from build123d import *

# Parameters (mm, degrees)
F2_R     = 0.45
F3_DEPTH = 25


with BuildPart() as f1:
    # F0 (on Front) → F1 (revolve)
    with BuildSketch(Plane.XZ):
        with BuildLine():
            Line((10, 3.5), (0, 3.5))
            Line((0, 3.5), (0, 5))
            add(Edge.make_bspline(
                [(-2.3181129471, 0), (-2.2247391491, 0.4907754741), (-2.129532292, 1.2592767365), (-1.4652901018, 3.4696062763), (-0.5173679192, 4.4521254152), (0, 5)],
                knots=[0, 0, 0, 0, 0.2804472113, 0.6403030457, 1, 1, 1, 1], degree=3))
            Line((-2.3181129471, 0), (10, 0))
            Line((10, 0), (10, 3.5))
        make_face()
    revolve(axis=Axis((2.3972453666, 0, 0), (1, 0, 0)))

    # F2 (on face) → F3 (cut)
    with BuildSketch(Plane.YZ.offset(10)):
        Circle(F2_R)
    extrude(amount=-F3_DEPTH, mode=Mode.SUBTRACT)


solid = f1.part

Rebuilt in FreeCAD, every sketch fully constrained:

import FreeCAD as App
import Part
import Sketcher

doc = App.newDocument("Part")
body = doc.addObject("PartDesign::Body", "Body")

# Sketch on XZ plane
sketch1 = body.newObject("Sketcher::SketchObject", "Sketch")
sketch1.AttachmentSupport = (doc.getObject("XZ_Plane"), [""])
sketch1.MapMode = "FlatFace"
sketch1.addGeometry(Part.LineSegment(App.Vector(10, 3.5, 0), App.Vector(0, 3.5, 0)), False)
sketch1.addGeometry(Part.LineSegment(App.Vector(0, 3.5, 0), App.Vector(0, 5, 0)), False)
sketch1.addGeometry(Part.BSplineCurve([App.Vector(-2.318113, 0, 0), App.Vector(-2.224739, 0.490775, 0), App.Vector(-2.129532, 1.259277, 0), App.Vector(-1.46529, 3.469606, 0), App.Vector(-0.517368, 4.452125, 0), App.Vector(0, 5, 0)], [4, 1, 1, 4], [0, 0.280447211, 0.640303046, 1], False, 3, [1, 1, 1, 1, 1, 1], False), False)
sketch1.addGeometry(Part.LineSegment(App.Vector(-2.318113, 0, 0), App.Vector(10, 0, 0)), False)
sketch1.addGeometry(Part.LineSegment(App.Vector(10, 0, 0), App.Vector(10, 3.5, 0)), False)
sketch1.addConstraint(Sketcher.Constraint("Block", 2))
sketch1.addConstraint(Sketcher.Constraint("Coincident", 0, 2, 1, 1))
sketch1.addConstraint(Sketcher.Constraint("Coincident", 1, 2, 2, 2))
sketch1.addConstraint(Sketcher.Constraint("Coincident", 2, 1, 3, 1))
sketch1.addConstraint(Sketcher.Constraint("Coincident", 3, 2, 4, 1))
sketch1.addConstraint(Sketcher.Constraint("Coincident", 4, 2, 0, 1))
sketch1.addConstraint(Sketcher.Constraint("Horizontal", 0))
sketch1.addConstraint(Sketcher.Constraint("Vertical", 1))
sketch1.addConstraint(Sketcher.Constraint("Horizontal", 3))
sketch1.addConstraint(Sketcher.Constraint("Vertical", 4))
sketch1.addConstraint(Sketcher.Constraint("DistanceX", 0, 2, 0, 1, 10.0))
sketch1.addConstraint(Sketcher.Constraint("DistanceY", 1, 1, 1, 2, 1.5))
revolution = body.newObject("PartDesign::Revolution", "Revolution")
revolution.Profile = sketch1
revolution.ReferenceAxis = (sketch1, ["H_Axis"])
revolution.Angle = 360

# Sketch on YZ plane
sketch2 = body.newObject("Sketcher::SketchObject", "Sketch001")
sketch2.AttachmentSupport = (doc.getObject("YZ_Plane"), [""])
sketch2.MapMode = "FlatFace"
sketch2.AttachmentOffset = App.Placement(App.Vector(0, 0, 10), App.Rotation())
sketch2.addGeometry(Part.Circle(App.Vector(0, 0, 0), App.Vector(0, 0, 1), 0.45), False)
sketch2.addConstraint(Sketcher.Constraint("Coincident", 0, 3, -1, 1))
sketch2.addConstraint(Sketcher.Constraint("Diameter", 0, 0.9))
pocket1 = body.newObject("PartDesign::Pocket", "Pocket")
pocket1.Profile = sketch2
pocket1.Length = 25

doc.recompute()
